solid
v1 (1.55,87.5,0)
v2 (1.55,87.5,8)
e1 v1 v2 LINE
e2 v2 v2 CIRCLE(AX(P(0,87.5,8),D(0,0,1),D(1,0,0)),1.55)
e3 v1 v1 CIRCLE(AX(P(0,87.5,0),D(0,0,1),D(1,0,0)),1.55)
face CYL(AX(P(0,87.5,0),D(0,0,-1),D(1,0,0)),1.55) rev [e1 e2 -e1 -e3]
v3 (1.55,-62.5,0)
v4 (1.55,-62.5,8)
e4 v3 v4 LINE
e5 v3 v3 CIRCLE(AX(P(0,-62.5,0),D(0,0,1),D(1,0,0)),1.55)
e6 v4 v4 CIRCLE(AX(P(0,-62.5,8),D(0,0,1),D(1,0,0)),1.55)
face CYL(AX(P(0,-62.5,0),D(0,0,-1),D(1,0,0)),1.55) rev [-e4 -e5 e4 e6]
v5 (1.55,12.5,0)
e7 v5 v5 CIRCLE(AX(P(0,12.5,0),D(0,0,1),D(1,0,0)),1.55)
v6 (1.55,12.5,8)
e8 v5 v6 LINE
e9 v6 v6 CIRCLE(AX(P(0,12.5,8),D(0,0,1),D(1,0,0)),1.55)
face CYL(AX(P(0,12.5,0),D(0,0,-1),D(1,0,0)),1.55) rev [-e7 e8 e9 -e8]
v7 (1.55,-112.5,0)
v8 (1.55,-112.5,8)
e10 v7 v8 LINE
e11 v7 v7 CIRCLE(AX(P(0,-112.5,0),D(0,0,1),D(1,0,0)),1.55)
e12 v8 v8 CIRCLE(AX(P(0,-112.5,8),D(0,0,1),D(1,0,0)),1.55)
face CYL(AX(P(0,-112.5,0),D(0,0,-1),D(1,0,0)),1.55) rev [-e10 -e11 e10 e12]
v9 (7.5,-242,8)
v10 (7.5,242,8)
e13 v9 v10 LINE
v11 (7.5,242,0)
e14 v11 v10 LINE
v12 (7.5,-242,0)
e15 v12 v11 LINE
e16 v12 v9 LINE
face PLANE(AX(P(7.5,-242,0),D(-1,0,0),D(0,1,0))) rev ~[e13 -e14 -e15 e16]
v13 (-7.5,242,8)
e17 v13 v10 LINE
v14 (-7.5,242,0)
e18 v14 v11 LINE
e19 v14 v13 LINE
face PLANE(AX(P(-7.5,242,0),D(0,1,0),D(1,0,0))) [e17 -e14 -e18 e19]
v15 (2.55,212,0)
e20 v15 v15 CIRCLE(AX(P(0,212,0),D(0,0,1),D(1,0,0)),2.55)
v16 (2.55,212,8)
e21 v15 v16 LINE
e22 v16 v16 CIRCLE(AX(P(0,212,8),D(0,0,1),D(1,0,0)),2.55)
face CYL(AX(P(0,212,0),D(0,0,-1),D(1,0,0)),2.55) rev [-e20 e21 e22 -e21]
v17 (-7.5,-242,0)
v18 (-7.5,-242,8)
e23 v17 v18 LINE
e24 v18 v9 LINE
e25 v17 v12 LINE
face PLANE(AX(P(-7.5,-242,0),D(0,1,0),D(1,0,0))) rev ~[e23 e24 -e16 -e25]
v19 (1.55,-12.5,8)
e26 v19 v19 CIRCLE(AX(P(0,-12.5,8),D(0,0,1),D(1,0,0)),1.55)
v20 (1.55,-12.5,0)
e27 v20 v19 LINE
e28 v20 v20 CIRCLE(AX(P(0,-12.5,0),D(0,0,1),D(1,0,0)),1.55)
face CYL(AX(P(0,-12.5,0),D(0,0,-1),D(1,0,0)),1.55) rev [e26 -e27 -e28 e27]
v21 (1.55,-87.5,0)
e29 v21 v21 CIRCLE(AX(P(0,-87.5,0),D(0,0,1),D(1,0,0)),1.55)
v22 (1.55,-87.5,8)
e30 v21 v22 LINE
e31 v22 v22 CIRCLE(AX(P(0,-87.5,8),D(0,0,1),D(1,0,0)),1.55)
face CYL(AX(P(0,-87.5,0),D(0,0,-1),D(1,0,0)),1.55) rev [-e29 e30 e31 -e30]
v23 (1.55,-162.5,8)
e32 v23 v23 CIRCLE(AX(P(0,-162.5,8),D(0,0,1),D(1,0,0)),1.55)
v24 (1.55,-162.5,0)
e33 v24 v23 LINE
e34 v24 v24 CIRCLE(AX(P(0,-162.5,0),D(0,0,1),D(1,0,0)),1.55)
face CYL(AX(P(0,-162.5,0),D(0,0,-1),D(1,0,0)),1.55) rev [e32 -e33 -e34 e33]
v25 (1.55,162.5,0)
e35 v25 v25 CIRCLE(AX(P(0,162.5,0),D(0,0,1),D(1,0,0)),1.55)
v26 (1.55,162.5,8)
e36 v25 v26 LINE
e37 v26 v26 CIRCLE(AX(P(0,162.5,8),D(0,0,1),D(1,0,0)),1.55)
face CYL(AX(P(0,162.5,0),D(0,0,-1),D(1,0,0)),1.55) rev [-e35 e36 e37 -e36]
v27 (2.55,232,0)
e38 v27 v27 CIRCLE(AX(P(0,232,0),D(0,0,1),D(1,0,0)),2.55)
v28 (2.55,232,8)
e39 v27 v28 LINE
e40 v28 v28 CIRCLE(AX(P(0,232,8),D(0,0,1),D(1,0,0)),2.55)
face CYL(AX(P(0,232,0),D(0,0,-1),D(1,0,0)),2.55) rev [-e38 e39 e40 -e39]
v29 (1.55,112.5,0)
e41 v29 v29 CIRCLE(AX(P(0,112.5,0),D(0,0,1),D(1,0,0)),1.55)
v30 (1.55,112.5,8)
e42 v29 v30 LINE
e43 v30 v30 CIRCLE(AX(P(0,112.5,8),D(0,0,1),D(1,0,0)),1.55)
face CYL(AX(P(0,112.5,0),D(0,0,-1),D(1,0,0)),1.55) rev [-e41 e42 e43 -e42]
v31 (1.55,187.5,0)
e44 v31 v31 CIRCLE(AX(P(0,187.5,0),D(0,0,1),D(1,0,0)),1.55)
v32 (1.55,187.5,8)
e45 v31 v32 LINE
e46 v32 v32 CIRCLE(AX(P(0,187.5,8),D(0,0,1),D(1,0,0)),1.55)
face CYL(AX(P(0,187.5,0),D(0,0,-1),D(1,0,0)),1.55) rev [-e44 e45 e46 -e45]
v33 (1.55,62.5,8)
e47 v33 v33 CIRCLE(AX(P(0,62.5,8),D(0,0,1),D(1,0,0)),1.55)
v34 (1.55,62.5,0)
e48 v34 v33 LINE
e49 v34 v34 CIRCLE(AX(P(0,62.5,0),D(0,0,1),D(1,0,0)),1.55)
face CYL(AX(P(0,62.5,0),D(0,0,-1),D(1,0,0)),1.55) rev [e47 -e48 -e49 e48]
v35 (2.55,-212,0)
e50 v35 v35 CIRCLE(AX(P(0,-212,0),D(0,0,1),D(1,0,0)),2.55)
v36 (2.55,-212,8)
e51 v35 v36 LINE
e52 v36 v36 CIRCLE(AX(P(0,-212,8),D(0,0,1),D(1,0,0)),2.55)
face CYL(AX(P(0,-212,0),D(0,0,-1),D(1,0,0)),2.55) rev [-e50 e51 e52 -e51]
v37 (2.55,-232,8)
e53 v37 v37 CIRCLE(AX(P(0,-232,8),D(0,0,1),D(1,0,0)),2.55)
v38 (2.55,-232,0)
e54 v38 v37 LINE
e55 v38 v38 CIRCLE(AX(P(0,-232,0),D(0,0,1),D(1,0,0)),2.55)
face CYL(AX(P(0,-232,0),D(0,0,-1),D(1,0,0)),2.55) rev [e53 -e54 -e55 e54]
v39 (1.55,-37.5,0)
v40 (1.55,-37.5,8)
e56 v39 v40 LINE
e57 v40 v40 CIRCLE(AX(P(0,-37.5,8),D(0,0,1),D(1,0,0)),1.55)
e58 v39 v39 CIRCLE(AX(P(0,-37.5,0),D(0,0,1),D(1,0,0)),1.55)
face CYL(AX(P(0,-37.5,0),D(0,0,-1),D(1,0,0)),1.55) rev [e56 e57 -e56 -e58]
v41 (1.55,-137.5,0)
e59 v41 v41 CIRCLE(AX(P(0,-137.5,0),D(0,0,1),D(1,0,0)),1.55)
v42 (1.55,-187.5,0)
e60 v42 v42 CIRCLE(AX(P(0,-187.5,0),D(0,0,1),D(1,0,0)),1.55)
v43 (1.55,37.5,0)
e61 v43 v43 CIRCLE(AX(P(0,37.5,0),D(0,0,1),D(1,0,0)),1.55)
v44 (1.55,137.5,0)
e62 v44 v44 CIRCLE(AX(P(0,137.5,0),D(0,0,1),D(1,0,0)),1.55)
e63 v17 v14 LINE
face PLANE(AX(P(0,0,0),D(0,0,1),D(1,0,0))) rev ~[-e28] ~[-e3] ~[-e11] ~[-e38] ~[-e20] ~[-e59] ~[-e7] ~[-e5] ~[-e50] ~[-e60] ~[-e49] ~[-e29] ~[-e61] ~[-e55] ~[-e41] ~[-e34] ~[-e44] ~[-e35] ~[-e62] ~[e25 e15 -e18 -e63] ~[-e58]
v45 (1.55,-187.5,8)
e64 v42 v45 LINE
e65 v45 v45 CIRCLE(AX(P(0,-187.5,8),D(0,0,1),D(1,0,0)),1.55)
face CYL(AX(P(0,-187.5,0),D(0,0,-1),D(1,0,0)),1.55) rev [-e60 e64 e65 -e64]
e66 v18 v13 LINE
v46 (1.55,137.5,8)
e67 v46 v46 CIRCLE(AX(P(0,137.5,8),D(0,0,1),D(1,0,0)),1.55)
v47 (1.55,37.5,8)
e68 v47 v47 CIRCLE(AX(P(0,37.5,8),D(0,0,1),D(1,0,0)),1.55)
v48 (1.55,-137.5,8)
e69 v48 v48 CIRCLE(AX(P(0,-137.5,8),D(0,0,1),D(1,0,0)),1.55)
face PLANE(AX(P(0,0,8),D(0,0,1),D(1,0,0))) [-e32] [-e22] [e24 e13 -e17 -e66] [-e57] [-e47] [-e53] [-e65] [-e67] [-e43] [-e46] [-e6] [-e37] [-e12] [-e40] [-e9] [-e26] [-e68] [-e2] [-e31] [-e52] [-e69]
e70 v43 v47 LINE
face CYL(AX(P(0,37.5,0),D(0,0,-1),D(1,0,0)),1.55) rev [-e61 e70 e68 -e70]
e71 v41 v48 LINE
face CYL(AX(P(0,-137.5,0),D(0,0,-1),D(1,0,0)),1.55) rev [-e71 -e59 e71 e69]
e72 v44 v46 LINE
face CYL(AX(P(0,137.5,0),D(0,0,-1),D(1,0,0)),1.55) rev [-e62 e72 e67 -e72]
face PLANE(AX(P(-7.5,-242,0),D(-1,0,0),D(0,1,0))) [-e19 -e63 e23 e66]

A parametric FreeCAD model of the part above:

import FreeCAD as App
import Part
import Sketcher
Q = App.Units.Quantity


def add_polygon(sketch, points):
    """Adds a closed chain of lines whose ends are joined by coincident constraints."""
    first, n = sketch.GeometryCount, len(points)
    for a, b in zip(points, points[1:] + points[:1]):
        sketch.addGeometry(Part.LineSegment(App.Vector(*a, 0), App.Vector(*b, 0)), False)
    for i in range(n):
        sketch.addConstraint(Sketcher.Constraint("Coincident", first + i, 2, first + (i + 1) % n, 1))

doc = App.newDocument("Part")
body = doc.addObject("PartDesign::Body", "Body")

# Sketch on XY plane
sketch1 = body.newObject("Sketcher::SketchObject", "Sketch")
sketch1.AttachmentSupport = (doc.getObject("XY_Plane"), [""])
sketch1.MapMode = "FlatFace"
add_polygon(sketch1, [(-7.5, 242), (-7.5, -242), (7.5, -242), (7.5, 242)])  # lines 0-3
sketch1.addGeometry(Part.Circle(App.Vector(0, -232, 0), App.Vector(0, 0, 1), 2.55), False)  # 4
sketch1.addGeometry(Part.Circle(App.Vector(0, -212, 0), App.Vector(0, 0, 1), 2.55), False)  # 5
sketch1.addGeometry(Part.Circle(App.Vector(0, -187.5, 0), App.Vector(0, 0, 1), 1.55), False)  # 6
sketch1.addGeometry(Part.Circle(App.Vector(0, -162.5, 0), App.Vector(0, 0, 1), 1.55), False)  # 7
sketch1.addGeometry(Part.Circle(App.Vector(0, -137.5, 0), App.Vector(0, 0, 1), 1.55), False)  # 8
sketch1.addGeometry(Part.Circle(App.Vector(0, -112.5, 0), App.Vector(0, 0, 1), 1.55), False)  # 9
sketch1.addGeometry(Part.Circle(App.Vector(0, -87.5, 0), App.Vector(0, 0, 1), 1.55), False)  # 10
sketch1.addGeometry(Part.Circle(App.Vector(0, -62.5, 0), App.Vector(0, 0, 1), 1.55), False)  # 11
sketch1.addGeometry(Part.Circle(App.Vector(0, -37.5, 0), App.Vector(0, 0, 1), 1.55), False)  # 12
sketch1.addGeometry(Part.Circle(App.Vector(0, -12.5, 0), App.Vector(0, 0, 1), 1.55), False)  # 13
sketch1.addGeometry(Part.Circle(App.Vector(0, 12.5, 0), App.Vector(0, 0, 1), 1.55), False)  # 14
sketch1.addGeometry(Part.Circle(App.Vector(0, 37.5, 0), App.Vector(0, 0, 1), 1.55), False)  # 15
sketch1.addGeometry(Part.Circle(App.Vector(0, 62.5, 0), App.Vector(0, 0, 1), 1.55), False)  # 16
sketch1.addGeometry(Part.Circle(App.Vector(0, 87.5, 0), App.Vector(0, 0, 1), 1.55), False)  # 17
sketch1.addGeometry(Part.Circle(App.Vector(0, 112.5, 0), App.Vector(0, 0, 1), 1.55), False)  # 18
sketch1.addGeometry(Part.Circle(App.Vector(0, 137.5, 0), App.Vector(0, 0, 1), 1.55), False)  # 19
sketch1.addGeometry(Part.Circle(App.Vector(0, 162.5, 0), App.Vector(0, 0, 1), 1.55), False)  # 20
sketch1.addGeometry(Part.Circle(App.Vector(0, 187.5, 0), App.Vector(0, 0, 1), 1.55), False)  # 21
sketch1.addGeometry(Part.Circle(App.Vector(0, 212, 0), App.Vector(0, 0, 1), 2.55), False)  # 22
sketch1.addGeometry(Part.Circle(App.Vector(0, 232, 0), App.Vector(0, 0, 1), 2.55), False)  # 23
sketch1.addConstraint([
    Sketcher.Constraint("Vertical", 0),
    Sketcher.Constraint("Horizontal", 1),
    Sketcher.Constraint("Vertical", 2),
    Sketcher.Constraint("Horizontal", 3),
    Sketcher.Constraint("Equal", 4, 5),
    Sketcher.Constraint("Equal", 6, 7),
    Sketcher.Constraint("Equal", 7, 8),
    Sketcher.Constraint("Equal", 8, 9),
    Sketcher.Constraint("Equal", 9, 10),
    Sketcher.Constraint("Equal", 10, 11),
    Sketcher.Constraint("Equal", 11, 12),
    Sketcher.Constraint("Equal", 12, 13),
    Sketcher.Constraint("Equal", 13, 14),
    Sketcher.Constraint("Equal", 14, 15),
    Sketcher.Constraint("Equal", 15, 16),
    Sketcher.Constraint("Equal", 16, 17),
    Sketcher.Constraint("Equal", 17, 18),
    Sketcher.Constraint("Equal", 18, 19),
    Sketcher.Constraint("Equal", 19, 20),
    Sketcher.Constraint("Equal", 20, 21),
    Sketcher.Constraint("Equal", 5, 22),
    Sketcher.Constraint("Equal", 22, 23),
    Sketcher.Constraint("Symmetric", 13, 3, 14, 3, -1, 1),
    Sketcher.Constraint("Symmetric", 12, 3, 15, 3, -1, 1),
    Sketcher.Constraint("Symmetric", 11, 3, 16, 3, -1, 1),
    Sketcher.Constraint("Symmetric", 10, 3, 17, 3, -1, 1),
    Sketcher.Constraint("Symmetric", 9, 3, 18, 3, -1, 1),
    Sketcher.Constraint("Symmetric", 8, 3, 19, 3, -1, 1),
    Sketcher.Constraint("Symmetric", 7, 3, 20, 3, -1, 1),
    Sketcher.Constraint("Symmetric", 6, 3, 21, 3, -1, 1),
    Sketcher.Constraint("Symmetric", 5, 3, 22, 3, -1, 1),
    Sketcher.Constraint("Symmetric", 4, 3, 23, 3, -1, 1),
    Sketcher.Constraint("Symmetric", 0, 2, 2, 2, -1, 1),
    Sketcher.Constraint("PointOnObject", 4, 3, -2),
    Sketcher.Constraint("PointOnObject", 5, 3, -2),
    Sketcher.Constraint("PointOnObject", 6, 3, -2),
    Sketcher.Constraint("PointOnObject", 7, 3, -2),
    Sketcher.Constraint("PointOnObject", 8, 3, -2),
    Sketcher.Constraint("PointOnObject", 9, 3, -2),
    Sketcher.Constraint("PointOnObject", 10, 3, -2),
    Sketcher.Constraint("PointOnObject", 11, 3, -2),
    Sketcher.Constraint("PointOnObject", 12, 3, -2),
    Sketcher.Constraint("PointOnObject", 13, 3, -2),
    Sketcher.Constraint("Diameter", 4, Q("5.1 mm")),
    Sketcher.Constraint("Diameter", 6, Q("3.1 mm")),
    Sketcher.Constraint("DistanceX", 1, 1, 1, 2, Q("15 mm")),
    Sketcher.Constraint("DistanceY", 0, 2, 0, 1, Q("484 mm")),
    Sketcher.Constraint("DistanceY", 4, 3, -1, 1, Q("232 mm")),
    Sketcher.Constraint("DistanceY", 5, 3, -1, 1, Q("212 mm")),
    Sketcher.Constraint("DistanceY", 6, 3, 7, 3, Q("25 mm")),
    Sketcher.Constraint("DistanceY", 7, 3, 8, 3, Q("25 mm")),
    Sketcher.Constraint("DistanceY", 8, 3, 9, 3, Q("25 mm")),
    Sketcher.Constraint("DistanceY", 9, 3, 10, 3, Q("25 mm")),
    Sketcher.Constraint("DistanceY", 10, 3, 11, 3, Q("25 mm")),
    Sketcher.Constraint("DistanceY", 11, 3, 12, 3, Q("25 mm")),
    Sketcher.Constraint("DistanceY", 12, 3, 13, 3, Q("25 mm")),
    Sketcher.Constraint("DistanceY", 13, 3, 14, 3, Q("25 mm")),
])
pad1 = body.newObject("PartDesign::Pad", "Pad")
pad1.Profile = sketch1
pad1.Length = 8

doc.recompute()
